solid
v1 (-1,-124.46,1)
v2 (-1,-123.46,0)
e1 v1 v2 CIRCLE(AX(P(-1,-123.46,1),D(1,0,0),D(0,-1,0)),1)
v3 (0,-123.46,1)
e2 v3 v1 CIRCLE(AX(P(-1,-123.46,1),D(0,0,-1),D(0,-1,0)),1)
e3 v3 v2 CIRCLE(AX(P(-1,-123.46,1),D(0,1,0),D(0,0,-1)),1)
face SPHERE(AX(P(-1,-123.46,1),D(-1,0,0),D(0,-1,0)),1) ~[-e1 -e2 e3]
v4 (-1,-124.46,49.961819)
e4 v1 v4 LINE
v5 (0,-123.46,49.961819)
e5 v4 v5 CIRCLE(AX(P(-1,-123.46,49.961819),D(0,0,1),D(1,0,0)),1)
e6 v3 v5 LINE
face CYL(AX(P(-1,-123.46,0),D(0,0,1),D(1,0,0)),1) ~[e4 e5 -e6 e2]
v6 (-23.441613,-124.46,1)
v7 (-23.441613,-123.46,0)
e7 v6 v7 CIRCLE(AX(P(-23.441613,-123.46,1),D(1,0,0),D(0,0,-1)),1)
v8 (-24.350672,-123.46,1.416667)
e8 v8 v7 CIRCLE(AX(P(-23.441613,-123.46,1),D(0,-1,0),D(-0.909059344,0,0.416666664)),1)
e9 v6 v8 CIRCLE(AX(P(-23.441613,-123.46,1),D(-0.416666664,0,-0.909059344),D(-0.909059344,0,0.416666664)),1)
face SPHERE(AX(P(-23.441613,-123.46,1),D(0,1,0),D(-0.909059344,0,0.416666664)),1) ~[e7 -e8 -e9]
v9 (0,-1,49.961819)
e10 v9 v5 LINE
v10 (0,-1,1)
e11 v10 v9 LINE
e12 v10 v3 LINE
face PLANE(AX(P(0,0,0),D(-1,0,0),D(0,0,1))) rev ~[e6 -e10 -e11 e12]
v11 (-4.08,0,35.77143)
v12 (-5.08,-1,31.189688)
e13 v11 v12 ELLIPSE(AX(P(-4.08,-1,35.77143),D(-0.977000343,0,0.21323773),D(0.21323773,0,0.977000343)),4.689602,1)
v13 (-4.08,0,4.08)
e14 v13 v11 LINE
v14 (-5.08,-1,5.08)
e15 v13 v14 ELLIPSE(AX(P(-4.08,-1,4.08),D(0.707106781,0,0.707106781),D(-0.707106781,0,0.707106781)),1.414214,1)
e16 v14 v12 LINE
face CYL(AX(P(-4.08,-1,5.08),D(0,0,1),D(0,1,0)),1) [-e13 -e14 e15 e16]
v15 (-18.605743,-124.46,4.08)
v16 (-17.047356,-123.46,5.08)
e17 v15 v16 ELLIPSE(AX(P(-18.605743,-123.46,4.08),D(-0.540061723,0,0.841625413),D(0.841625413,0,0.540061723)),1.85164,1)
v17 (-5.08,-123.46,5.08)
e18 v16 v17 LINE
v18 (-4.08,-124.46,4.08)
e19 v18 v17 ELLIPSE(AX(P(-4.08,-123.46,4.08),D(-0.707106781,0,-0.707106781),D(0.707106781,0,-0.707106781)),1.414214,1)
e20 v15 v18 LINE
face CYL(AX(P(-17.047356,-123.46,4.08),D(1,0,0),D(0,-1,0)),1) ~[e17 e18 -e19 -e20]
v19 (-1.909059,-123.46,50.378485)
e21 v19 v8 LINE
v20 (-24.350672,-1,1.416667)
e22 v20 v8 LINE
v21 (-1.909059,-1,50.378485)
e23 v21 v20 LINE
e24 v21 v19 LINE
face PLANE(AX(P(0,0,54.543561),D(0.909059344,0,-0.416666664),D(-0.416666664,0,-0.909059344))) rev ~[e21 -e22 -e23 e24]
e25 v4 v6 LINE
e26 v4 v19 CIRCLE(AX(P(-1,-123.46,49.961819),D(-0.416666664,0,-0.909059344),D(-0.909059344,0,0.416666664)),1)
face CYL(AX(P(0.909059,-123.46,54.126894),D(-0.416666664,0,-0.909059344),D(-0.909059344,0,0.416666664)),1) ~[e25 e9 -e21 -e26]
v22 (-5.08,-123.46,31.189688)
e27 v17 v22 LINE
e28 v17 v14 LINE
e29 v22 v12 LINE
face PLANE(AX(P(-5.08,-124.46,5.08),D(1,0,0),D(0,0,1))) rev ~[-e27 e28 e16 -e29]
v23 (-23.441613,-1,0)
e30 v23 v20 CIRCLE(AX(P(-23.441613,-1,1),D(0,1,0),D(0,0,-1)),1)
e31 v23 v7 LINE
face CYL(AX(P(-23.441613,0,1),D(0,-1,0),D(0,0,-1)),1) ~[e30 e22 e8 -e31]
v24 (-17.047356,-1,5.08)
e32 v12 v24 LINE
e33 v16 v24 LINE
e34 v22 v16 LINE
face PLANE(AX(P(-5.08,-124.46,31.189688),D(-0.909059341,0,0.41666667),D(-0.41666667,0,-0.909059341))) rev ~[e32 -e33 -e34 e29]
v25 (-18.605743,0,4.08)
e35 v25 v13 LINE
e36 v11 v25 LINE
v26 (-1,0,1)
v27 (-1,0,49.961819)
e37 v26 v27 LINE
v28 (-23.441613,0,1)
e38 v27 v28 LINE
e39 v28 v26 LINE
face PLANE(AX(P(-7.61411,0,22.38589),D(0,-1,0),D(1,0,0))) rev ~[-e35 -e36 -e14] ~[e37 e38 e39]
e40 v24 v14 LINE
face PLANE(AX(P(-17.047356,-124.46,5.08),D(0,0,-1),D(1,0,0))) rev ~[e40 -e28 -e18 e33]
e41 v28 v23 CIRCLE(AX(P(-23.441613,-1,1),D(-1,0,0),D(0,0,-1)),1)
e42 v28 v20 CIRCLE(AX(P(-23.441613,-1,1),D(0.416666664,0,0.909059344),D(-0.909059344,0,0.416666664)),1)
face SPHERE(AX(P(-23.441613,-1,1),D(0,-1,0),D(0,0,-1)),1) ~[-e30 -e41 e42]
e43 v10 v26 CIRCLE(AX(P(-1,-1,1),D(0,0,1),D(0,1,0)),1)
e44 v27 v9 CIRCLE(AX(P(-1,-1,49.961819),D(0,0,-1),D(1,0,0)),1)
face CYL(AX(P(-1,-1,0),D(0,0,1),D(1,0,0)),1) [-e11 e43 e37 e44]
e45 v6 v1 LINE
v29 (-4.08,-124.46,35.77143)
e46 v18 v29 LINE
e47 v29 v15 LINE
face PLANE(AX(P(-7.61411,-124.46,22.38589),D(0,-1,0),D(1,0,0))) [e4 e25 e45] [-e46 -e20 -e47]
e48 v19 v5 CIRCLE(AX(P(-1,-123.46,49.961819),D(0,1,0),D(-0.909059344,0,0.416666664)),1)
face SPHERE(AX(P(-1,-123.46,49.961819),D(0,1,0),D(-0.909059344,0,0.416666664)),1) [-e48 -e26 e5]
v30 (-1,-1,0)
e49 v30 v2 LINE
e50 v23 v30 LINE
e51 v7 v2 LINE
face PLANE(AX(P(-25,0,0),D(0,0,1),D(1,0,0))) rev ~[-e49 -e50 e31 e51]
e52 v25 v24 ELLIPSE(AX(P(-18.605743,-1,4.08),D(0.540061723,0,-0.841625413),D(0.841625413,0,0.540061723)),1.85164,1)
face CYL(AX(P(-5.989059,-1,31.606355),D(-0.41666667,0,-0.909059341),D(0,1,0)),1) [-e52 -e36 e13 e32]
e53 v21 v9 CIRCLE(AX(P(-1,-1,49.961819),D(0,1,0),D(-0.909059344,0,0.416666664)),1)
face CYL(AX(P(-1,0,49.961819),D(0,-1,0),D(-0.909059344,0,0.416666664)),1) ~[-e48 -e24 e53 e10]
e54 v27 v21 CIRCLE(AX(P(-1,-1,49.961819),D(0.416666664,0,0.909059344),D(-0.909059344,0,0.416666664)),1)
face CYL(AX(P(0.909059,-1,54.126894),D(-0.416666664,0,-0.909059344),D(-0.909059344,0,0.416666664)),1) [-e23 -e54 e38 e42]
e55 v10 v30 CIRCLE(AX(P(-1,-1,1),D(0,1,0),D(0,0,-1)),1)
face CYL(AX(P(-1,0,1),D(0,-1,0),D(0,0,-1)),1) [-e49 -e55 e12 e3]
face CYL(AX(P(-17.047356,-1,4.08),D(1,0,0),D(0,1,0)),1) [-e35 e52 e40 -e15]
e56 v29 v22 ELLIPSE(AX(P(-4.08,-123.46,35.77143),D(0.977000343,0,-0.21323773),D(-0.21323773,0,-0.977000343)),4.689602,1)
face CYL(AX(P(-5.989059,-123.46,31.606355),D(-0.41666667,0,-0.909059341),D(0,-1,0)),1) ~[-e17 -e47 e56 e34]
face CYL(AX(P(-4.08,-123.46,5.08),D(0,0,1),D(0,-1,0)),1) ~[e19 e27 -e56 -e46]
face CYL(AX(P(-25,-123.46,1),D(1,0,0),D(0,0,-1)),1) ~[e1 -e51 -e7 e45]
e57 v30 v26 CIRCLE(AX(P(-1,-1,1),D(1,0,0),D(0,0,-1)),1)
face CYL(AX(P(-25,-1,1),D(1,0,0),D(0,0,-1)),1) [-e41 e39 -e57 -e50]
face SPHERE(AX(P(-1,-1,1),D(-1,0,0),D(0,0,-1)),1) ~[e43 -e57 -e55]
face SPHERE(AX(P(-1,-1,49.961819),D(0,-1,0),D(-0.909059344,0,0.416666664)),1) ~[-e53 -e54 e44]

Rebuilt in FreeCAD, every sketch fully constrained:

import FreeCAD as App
import Part
import Sketcher
from FreeCAD import Vector


def edges_at(feature, points):
    """Names of the edges that pass closest to the given points."""
    edges = feature.Shape.Edges
    near = lambda p: min(range(len(edges)), key=lambda i: edges[i].distToShape(Part.Vertex(*p))[0])
    return sorted({f"Edge{near(p) + 1}" for p in points})


def add_polygon(sketch, points):
    """Adds a closed chain of lines whose ends are joined by coincident constraints."""
    first, n = sketch.GeometryCount, len(points)
    for a, b in zip(points, points[1:] + points[:1]):
        sketch.addGeometry(Part.LineSegment(App.Vector(*a, 0), App.Vector(*b, 0)), False)
    for i in range(n):
        sketch.addConstraint(Sketcher.Constraint("Coincident", first + i, 2, first + (i + 1) % n, 1))

doc = App.newDocument("Part")
body = doc.addObject("PartDesign::Body", "Body")

# Sketch on XZ plane
sketch1 = body.newObject("Sketcher::SketchObject", "Sketch")
sketch1.AttachmentSupport = (doc.getObject("XZ_Plane"), [""])
sketch1.MapMode = "FlatFace"
add_polygon(sketch1, [(-25, 0), (0, 0), (0, 55)])  # lines 0-2
sketch1.addConstraint(Sketcher.Constraint("Horizontal", 0))
sketch1.addConstraint(Sketcher.Constraint("Vertical", 1))
sketch1.addConstraint(Sketcher.Constraint("Coincident", 0, 2, -1, 1))
sketch1.addConstraint(Sketcher.Constraint("DistanceX", 0, 1, 0, 2, 25.0))
sketch1.addConstraint(Sketcher.Constraint("Distance", 2, 60.0))
pad1 = body.newObject("PartDesign::Pad", "Pad")
pad1.Profile = sketch1
pad1.Length = 124.46

# Sketch on XZ plane
sketch2 = body.newObject("Sketcher::SketchObject", "Sketch001")
sketch2.AttachmentSupport = (doc.getObject("XZ_Plane"), [""])
sketch2.MapMode = "FlatFace"
sketch2.AttachmentOffset = App.Placement(Vector(0, 0, 124.46), App.Rotation())
add_polygon(sketch2, [(-5, 31), (-17, 5), (-5, 5)])  # lines 0-2
sketch2.addConstraint(Sketcher.Constraint("Horizontal", 1))
sketch2.addConstraint(Sketcher.Constraint("Vertical", 2))
sketch2.addConstraint(Sketcher.Constraint("DistanceY", -1, 1, 0, 2, 5.08))
sketch2.addConstraint(Sketcher.Constraint("DistanceX", 1, 2, -1, 1, 5.08))
sketch2.addConstraint(Sketcher.Constraint("DistanceX", 1, 1, 1, 2, 11.967356))
sketch2.addConstraint(Sketcher.Constraint("DistanceY", 2, 1, 2, 2, 26.109688))
pocket1 = body.newObject("PartDesign::Pocket", "Pocket")
pocket1.Profile = sketch2
pocket1.Type = "ThroughAll"
doc.recompute()

fillet = body.newObject("PartDesign::Fillet", "Fillet")
fillet.Base = (pocket1, edges_at(pocket1, [
    (0, -62.23, 54.544),
    (-12.5, 0, 27.272),
    (-25, -62.23, 0),
    (-12.5, -124.46, 27.272),
    (-12.5, -124.46, 0),
    (0, -124.46, 27.272),
    (-11.064, -124.46, 5.08),
    (-11.064, -124.46, 18.135),
    (-5.08, -124.46, 18.135),
    (-12.5, 0, 0),
    (0, -62.23, 0),
    (-5.08, 0, 18.135),
    (-11.064, 0, 5.08),
    (-11.064, 0, 18.135),
    (0, 0, 27.272),
]))
fillet.Radius = 1

doc.recompute()
